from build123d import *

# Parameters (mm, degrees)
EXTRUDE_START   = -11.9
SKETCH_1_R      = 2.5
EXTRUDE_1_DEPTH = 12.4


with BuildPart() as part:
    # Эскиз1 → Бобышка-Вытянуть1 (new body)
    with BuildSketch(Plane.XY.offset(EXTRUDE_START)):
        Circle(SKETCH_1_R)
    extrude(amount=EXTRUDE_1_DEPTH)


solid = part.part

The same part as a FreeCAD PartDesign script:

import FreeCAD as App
import Part
import Sketcher
from FreeCAD import Vector
Q = App.Units.Quantity

doc = App.newDocument("Part")
body = doc.addObject("PartDesign::Body", "Body")

sketch1 = body.newObject("Sketcher::SketchObject", "Sketch")
sketch1.AttachmentSupport = (doc.getObject("XY_Plane"), [""])
sketch1.MapMode = "FlatFace"
sketch1.AttachmentOffset = App.Placement(Vector(0, 0, -11.9), App.Rotation())
sketch1.addGeometry(Part.Circle(Vector(0, 0, 0), Vector(0, 0, 1), 2.5), False)
sketch1.addConstraint([
    Sketcher.Constraint("Coincident", 0, 3, -1, 1),
    Sketcher.Constraint("Diameter", 0, Q("5 mm")),
])
pad1 = body.newObject("PartDesign::Pad", "Pad")
pad1.Profile = sketch1
pad1.Length = 12.4

doc.recompute()
